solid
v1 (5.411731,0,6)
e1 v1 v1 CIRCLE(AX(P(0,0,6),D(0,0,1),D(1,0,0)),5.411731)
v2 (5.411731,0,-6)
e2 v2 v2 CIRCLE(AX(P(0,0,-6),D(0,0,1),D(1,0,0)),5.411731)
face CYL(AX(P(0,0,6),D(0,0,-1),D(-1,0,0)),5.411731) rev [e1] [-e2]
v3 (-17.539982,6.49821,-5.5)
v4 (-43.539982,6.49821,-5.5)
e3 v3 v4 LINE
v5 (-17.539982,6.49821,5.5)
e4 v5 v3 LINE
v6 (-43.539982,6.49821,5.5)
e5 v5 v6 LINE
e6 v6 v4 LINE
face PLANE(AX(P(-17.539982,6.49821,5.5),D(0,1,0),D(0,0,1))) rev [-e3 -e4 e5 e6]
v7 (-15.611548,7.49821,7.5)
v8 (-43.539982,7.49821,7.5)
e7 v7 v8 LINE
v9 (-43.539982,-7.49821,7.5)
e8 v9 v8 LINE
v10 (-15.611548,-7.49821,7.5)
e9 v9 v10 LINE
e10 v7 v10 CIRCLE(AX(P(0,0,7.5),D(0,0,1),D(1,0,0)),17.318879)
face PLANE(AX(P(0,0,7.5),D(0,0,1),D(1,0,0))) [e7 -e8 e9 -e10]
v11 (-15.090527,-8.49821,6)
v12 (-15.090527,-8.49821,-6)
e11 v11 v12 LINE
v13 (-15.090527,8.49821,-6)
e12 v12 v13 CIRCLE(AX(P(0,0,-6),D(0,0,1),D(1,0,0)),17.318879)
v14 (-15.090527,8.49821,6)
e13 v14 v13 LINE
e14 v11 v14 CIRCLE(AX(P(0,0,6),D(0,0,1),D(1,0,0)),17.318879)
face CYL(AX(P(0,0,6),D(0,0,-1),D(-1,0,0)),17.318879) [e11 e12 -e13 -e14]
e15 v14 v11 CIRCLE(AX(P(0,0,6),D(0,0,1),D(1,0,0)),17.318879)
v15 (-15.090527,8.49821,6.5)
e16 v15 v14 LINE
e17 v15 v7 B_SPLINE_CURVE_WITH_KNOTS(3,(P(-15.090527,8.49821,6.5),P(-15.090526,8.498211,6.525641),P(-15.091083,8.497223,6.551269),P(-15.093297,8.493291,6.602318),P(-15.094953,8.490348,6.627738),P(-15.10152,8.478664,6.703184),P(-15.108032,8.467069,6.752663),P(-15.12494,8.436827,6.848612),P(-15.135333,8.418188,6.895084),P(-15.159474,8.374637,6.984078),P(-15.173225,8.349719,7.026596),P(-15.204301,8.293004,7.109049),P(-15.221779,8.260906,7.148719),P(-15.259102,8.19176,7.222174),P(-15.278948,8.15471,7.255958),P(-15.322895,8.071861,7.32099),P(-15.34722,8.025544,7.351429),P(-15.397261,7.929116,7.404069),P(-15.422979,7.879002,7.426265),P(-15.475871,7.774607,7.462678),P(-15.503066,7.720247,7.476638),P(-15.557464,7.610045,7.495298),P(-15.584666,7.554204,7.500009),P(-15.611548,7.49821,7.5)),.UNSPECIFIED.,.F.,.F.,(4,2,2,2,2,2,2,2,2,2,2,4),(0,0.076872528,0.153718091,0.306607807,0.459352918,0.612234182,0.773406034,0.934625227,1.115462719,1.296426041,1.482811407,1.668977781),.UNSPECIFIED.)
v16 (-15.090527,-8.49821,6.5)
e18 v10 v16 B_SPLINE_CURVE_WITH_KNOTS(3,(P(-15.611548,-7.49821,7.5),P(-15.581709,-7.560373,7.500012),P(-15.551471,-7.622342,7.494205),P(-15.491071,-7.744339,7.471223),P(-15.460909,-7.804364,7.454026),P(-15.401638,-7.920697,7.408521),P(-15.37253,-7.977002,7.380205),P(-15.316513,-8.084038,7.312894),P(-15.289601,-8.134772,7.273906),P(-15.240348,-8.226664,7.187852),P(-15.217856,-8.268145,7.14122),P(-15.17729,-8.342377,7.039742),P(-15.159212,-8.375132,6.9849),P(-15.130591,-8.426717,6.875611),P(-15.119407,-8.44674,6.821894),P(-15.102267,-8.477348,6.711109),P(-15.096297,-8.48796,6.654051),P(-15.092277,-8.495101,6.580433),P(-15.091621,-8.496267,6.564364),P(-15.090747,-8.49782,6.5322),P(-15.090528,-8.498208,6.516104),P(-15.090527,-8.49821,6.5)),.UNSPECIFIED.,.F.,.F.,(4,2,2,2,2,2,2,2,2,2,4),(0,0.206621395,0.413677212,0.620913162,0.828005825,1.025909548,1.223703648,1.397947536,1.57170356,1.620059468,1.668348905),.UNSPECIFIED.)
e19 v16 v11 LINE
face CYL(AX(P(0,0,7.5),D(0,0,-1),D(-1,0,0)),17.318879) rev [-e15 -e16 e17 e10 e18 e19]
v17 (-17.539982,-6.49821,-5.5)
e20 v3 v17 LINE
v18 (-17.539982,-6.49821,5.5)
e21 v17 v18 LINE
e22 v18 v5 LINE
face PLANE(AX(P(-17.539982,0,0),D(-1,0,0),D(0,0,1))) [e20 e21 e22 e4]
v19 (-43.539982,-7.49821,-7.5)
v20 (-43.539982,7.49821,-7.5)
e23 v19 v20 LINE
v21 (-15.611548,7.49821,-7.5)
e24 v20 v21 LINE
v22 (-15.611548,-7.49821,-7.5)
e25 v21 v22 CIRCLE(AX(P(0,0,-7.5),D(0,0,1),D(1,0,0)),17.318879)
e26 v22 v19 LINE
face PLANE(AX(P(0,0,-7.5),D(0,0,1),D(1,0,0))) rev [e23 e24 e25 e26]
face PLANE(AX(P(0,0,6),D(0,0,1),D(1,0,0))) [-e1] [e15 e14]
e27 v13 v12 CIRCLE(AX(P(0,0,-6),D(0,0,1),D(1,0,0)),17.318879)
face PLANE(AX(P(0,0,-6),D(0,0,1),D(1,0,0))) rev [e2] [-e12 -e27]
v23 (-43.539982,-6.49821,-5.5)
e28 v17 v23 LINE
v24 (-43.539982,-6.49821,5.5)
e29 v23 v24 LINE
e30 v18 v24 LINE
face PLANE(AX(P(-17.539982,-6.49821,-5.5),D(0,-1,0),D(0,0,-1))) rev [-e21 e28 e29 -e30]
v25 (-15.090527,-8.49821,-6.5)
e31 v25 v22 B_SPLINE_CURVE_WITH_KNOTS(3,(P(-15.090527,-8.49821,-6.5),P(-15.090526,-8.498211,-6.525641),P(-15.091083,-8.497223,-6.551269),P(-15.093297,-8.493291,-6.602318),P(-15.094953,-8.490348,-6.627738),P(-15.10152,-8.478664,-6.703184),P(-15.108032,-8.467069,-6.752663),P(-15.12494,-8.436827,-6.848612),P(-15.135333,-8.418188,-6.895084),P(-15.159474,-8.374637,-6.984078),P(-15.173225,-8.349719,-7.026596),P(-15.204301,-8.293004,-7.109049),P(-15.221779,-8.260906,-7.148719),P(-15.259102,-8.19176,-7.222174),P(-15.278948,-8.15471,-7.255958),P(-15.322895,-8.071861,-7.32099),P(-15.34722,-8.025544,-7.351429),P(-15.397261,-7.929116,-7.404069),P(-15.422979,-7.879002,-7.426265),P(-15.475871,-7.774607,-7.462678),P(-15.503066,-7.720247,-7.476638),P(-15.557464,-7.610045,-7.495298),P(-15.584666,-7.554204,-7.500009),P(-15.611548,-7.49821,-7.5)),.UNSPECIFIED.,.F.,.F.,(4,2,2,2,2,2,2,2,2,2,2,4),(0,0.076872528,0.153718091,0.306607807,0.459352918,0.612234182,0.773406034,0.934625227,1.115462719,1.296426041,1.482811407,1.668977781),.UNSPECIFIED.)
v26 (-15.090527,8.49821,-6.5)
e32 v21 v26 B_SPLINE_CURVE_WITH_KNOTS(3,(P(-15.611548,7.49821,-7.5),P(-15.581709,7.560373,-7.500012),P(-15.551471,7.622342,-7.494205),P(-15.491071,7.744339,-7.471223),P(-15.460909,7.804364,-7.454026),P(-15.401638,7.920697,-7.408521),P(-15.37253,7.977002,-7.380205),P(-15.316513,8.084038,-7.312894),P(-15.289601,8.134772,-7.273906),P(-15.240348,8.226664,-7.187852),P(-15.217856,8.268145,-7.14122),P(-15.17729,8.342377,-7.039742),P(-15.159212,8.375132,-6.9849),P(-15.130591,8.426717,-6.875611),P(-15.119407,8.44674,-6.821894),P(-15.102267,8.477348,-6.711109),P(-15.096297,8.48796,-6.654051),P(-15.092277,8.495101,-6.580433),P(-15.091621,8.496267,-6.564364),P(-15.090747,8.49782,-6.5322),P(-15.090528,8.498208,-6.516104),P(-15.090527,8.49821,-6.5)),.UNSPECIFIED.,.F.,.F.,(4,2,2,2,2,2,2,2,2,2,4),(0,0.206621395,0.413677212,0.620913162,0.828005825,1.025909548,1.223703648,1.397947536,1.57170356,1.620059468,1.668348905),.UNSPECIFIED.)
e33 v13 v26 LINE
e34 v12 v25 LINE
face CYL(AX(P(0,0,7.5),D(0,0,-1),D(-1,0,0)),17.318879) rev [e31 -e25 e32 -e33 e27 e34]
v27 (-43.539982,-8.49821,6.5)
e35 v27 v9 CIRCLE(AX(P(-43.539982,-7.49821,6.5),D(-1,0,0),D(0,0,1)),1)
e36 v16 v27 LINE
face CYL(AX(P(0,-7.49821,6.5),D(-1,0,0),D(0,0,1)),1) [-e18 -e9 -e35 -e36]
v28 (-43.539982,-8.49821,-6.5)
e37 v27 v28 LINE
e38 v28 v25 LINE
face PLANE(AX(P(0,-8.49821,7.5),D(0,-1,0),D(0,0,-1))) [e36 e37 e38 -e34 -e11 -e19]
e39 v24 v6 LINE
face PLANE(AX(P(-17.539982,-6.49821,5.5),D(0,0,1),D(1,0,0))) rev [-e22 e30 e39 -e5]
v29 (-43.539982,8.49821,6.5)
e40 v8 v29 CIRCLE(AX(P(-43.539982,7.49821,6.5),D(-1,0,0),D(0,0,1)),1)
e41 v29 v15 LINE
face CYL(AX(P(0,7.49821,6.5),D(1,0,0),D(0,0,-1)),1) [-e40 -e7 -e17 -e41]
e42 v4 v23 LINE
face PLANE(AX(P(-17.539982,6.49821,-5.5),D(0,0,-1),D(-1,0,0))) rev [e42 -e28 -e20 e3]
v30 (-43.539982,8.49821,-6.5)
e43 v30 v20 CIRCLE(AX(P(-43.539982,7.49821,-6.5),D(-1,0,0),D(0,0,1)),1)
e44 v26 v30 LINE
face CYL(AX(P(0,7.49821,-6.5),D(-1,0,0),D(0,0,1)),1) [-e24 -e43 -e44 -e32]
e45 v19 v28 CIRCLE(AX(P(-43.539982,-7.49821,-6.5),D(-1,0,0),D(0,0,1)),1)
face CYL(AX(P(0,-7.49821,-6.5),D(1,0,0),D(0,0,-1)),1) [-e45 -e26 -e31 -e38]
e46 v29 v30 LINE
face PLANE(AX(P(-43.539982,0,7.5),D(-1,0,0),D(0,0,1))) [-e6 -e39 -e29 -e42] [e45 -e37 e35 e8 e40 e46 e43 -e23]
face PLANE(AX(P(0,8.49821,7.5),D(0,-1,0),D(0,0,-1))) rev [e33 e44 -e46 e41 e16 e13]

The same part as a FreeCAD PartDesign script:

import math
import FreeCAD as App
import Part
import Sketcher
from FreeCAD import Vector
Q = App.Units.Quantity


def edges_at(feature, points):
    """Names of the edges that pass closest to the given points."""
    edges = feature.Shape.Edges
    near = lambda p: min(range(len(edges)), key=lambda i: edges[i].distToShape(Part.Vertex(*p))[0])
    return sorted({f"Edge{near(p) + 1}" for p in points})


def add_polygon(sketch, points):
    """Adds a closed chain of lines whose ends are joined by coincident constraints."""
    first, n = sketch.GeometryCount, len(points)
    for a, b in zip(points, points[1:] + points[:1]):
        sketch.addGeometry(Part.LineSegment(App.Vector(*a, 0), App.Vector(*b, 0)), False)
    for i in range(n):
        sketch.addConstraint(Sketcher.Constraint("Coincident", first + i, 2, first + (i + 1) % n, 1))

doc = App.newDocument("Part")
body = doc.addObject("PartDesign::Body", "Body")

# Sketch on XY plane
sketch1 = doc.addObject("Sketcher::SketchObject", "Sketch")
body.addObject(sketch1)
sketch1.AttachmentSupport = (doc.XY_Plane, [""])
sketch1.MapMode = "FlatFace"
sketch1.addGeometry([
    Part.Circle(Vector(0, 0, 0), Vector(0, 0, 1), 17),
    Part.Circle(Vector(0, 0, 0), Vector(0, 0, 1), 5),
], False)
sketch1.addConstraint([
    Sketcher.Constraint("Coincident", 0, 3, -1, 1),
    Sketcher.Constraint("Coincident", 1, 3, -1, 1),
    Sketcher.Constraint("Diameter", 0, Q("34.637759 mm")),
    Sketcher.Constraint("Diameter", 1, Q("10.823463 mm")),
])
pad1 = doc.addObject("PartDesign::Pad", "Pad")
body.addObject(pad1)
pad1.Profile = sketch1
pad1.Length = 12
pad1.Midplane = True

# Sketch on XY plane
sketch2 = doc.addObject("Sketcher::SketchObject", "Sketch001")
body.addObject(sketch2)
sketch2.AttachmentSupport = (doc.XY_Plane, [""])
sketch2.MapMode = "FlatFace"
sketch2.addGeometry([
    Part.LineSegment(Vector(-44, -8, 0), Vector(-15, -8, 0)),
    Part.ArcOfCircle(Part.Circle(Vector(0, 0, 0), Vector(0, 0, 1), 17), math.radians(151), math.radians(209)),
    Part.LineSegment(Vector(-15, 8, 0), Vector(-44, 8, 0)),
    Part.LineSegment(Vector(-44, 8, 0), Vector(-44, -8, 0)),
], False)
sketch2.addConstraint([
    Sketcher.Constraint("Coincident", 0, 2, 1, 2),
    Sketcher.Constraint("Coincident", 1, 1, 2, 1),
    Sketcher.Constraint("Coincident", 2, 2, 3, 1),
    Sketcher.Constraint("Coincident", 3, 2, 0, 1),
    Sketcher.Constraint("Horizontal", 0),
    Sketcher.Constraint("Horizontal", 2),
    Sketcher.Constraint("Vertical", 3),
    Sketcher.Constraint("Coincident", 1, 3, -1, 1),
    Sketcher.Constraint("Vertical", 0, 2, 1, 1),
    Sketcher.Constraint("Radius", 1, Q("17.318879 mm")),
    Sketcher.Constraint("DistanceY", 3, 2, 3, 1, Q("16.996419 mm")),
    Sketcher.Constraint("DistanceX", 0, 1, 0, 2, Q("28.449455 mm")),
])
pad2 = doc.addObject("PartDesign::Pad", "Pad001")
body.addObject(pad2)
pad2.Profile = sketch2
pad2.Length = 15
pad2.Midplane = True

# Sketch on YZ plane
sketch3 = doc.addObject("Sketcher::SketchObject", "Sketch002")
body.addObject(sketch3)
sketch3.AttachmentSupport = (doc.YZ_Plane, [""])
sketch3.MapMode = "FlatFace"
sketch3.AttachmentOffset = App.Placement(Vector(0, 0, -43.539982), App.Rotation())
add_polygon(sketch3, [(6, -6), (-6, -6), (-6, 6), (6, 6)])  # lines 0-3
sketch3.addConstraint([
    Sketcher.Constraint("Horizontal", 0),
    Sketcher.Constraint("Vertical", 1),
    Sketcher.Constraint("Horizontal", 2),
    Sketcher.Constraint("Vertical", 3),
    Sketcher.Constraint("Symmetric", 0, 2, 2, 2, -1, 1),
    Sketcher.Constraint("DistanceY", 1, 1, 1, 2, Q("11 mm")),
    Sketcher.Constraint("DistanceX", 0, 2, 0, 1, Q("12.996419 mm")),
])
pocket1 = doc.addObject("PartDesign::Pocket", "Pocket")
body.addObject(pocket1)
pocket1.Profile = sketch3
pocket1.Length = 26
pocket1.Reversed = True
doc.recompute()

fillet = doc.addObject("PartDesign::Fillet", "Fillet")
body.addObject(fillet)
fillet.Base = (pocket1, edges_at(pocket1, [
    (-29.315, 8.498, -7.5),
    (-29.315, -8.498, 7.5),
    (-29.315, 8.498, 7.5),
    (-29.315, -8.498, -7.5),
]))
fillet.Radius = 1

doc.recompute()
